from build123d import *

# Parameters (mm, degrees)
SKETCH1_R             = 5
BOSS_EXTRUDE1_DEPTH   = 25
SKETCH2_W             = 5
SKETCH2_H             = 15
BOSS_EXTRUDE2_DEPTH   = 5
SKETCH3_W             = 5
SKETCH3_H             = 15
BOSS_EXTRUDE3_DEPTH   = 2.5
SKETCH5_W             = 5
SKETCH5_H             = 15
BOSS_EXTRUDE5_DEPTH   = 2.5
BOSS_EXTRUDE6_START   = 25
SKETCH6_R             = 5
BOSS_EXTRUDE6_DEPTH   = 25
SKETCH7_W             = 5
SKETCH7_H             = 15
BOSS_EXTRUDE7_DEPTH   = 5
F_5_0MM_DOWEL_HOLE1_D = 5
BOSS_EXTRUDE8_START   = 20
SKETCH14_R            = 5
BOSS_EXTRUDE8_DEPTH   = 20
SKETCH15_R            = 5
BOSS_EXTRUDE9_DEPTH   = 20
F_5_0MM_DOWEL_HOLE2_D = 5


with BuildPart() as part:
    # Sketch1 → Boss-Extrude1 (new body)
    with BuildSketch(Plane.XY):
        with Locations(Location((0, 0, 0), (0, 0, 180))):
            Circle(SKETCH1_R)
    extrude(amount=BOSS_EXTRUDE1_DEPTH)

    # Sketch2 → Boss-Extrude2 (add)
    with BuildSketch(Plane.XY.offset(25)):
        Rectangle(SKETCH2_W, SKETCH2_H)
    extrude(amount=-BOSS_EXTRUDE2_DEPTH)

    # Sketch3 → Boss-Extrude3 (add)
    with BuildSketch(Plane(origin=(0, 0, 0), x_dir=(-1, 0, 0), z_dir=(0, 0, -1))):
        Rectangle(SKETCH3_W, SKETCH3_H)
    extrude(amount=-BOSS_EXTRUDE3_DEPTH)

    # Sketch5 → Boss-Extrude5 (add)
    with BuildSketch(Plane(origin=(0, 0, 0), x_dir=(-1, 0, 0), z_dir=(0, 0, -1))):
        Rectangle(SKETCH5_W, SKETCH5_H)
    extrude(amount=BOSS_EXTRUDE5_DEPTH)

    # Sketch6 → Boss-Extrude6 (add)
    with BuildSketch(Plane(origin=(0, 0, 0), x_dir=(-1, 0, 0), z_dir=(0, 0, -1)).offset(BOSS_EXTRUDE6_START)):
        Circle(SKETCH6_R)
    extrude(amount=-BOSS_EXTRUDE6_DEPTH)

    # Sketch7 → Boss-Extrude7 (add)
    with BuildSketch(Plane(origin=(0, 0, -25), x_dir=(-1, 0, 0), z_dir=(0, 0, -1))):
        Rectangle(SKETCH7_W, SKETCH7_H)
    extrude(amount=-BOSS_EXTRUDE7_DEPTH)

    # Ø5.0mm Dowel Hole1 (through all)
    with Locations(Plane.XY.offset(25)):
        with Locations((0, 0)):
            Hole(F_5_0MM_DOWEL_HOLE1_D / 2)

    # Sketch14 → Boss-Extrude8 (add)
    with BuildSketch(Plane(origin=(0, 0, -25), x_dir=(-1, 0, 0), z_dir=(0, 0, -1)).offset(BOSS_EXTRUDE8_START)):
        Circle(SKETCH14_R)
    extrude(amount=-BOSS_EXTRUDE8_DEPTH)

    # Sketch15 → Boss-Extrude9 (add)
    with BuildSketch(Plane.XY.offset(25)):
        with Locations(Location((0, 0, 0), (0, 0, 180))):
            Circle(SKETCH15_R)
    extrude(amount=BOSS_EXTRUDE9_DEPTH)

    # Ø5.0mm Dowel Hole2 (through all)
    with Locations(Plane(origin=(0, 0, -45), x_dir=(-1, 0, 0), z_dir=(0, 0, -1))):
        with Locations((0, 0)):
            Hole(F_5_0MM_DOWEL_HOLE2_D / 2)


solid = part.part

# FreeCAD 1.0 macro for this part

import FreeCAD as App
import Part
import Sketcher
Q = App.Units.Quantity


def add_polygon(sketch, points):
    """Adds a closed chain of lines whose ends are joined by coincident constraints."""
    first, n = sketch.GeometryCount, len(points)
    for a, b in zip(points, points[1:] + points[:1]):
        sketch.addGeometry(Part.LineSegment(App.Vector(*a, 0), App.Vector(*b, 0)), False)
    for i in range(n):
        sketch.addConstraint(Sketcher.Constraint("Coincident", first + i, 2, first + (i + 1) % n, 1))

doc = App.newDocument("Part")
body = doc.addObject("PartDesign::Body", "Body")

sketch1 = body.newObject("Sketcher::SketchObject", "Sketch")
sketch1.AttachmentSupport = (doc.getObject("XY_Plane"), [""])
sketch1.MapMode = "FlatFace"
sketch1.addGeometry(Part.Circle(App.Vector(0, 0, 0), App.Vector(0, 0, 1), 5), False)
sketch1.addConstraint([
    Sketcher.Constraint("Coincident", 0, 3, -1, 1),
    Sketcher.Constraint("Diameter", 0, Q("10 mm")),
])
pad1 = body.newObject("PartDesign::Pad", "Pad")
pad1.Profile = sketch1
pad1.Length = 25

sketch2 = body.newObject("Sketcher::SketchObject", "Sketch001")
sketch2.AttachmentSupport = (doc.getObject("XY_Plane"), [""])
sketch2.MapMode = "FlatFace"
sketch2.AttachmentOffset = App.Placement(App.Vector(0, 0, 25), App.Rotation())
add_polygon(sketch2, [(-2, 8), (-2, -8), (2, -8), (2, 8)])
sketch2.addConstraint([
    Sketcher.Constraint("Vertical", 0),
    Sketcher.Constraint("Horizontal", 1),
    Sketcher.Constraint("Vertical", 2),
    Sketcher.Constraint("Horizontal", 3),
    Sketcher.Constraint("Symmetric", 0, 2, 2, 2, -1, 1),
    Sketcher.Constraint("DistanceX", 1, 1, 1, 2, Q("5 mm")),
    Sketcher.Constraint("DistanceY", 0, 2, 0, 1, Q("15 mm")),
])
pad2 = body.newObject("PartDesign::Pad", "Pad001")
pad2.Profile = sketch2
pad2.Length = 5
pad2.Reversed = True

sketch3 = body.newObject("Sketcher::SketchObject", "Sketch002")
sketch3.AttachmentSupport = (doc.getObject("XY_Plane"), [""])
sketch3.MapMode = "FlatFace"
add_polygon(sketch3, [(2, 8), (2, -8), (-2, -8), (-2, 8)])
sketch3.addConstraint([
    Sketcher.Constraint("Vertical", 0),
    Sketcher.Constraint("Horizontal", 1),
    Sketcher.Constraint("Vertical", 2),
    Sketcher.Constraint("Horizontal", 3),
    Sketcher.Constraint("Symmetric", 0, 2, 2, 2, -1, 1),
    Sketcher.Constraint("DistanceX", 1, 2, 1, 1, Q("5 mm")),
    Sketcher.Constraint("DistanceY", 0, 2, 0, 1, Q("15 mm")),
])
pad3 = body.newObject("PartDesign::Pad", "Pad002")
pad3.Profile = sketch3
pad3.Length = 2.5

sketch4 = body.newObject("Sketcher::SketchObject", "Sketch003")
sketch4.AttachmentSupport = (doc.getObject("XY_Plane"), [""])
sketch4.MapMode = "FlatFace"
add_polygon(sketch4, [(2, 8), (2, -8), (-2, -8), (-2, 8)])
sketch4.addConstraint([
    Sketcher.Constraint("Vertical", 0),
    Sketcher.Constraint("Horizontal", 1),
    Sketcher.Constraint("Vertical", 2),
    Sketcher.Constraint("Horizontal", 3),
    Sketcher.Constraint("Symmetric", 0, 2, 2, 2, -1, 1),
    Sketcher.Constraint("DistanceX", 1, 2, 1, 1, Q("5 mm")),
    Sketcher.Constraint("DistanceY", 0, 2, 0, 1, Q("15 mm")),
])
pad4 = body.newObject("PartDesign::Pad", "Pad003")
pad4.Profile = sketch4
pad4.Length = 2.5
pad4.Reversed = True

sketch5 = body.newObject("Sketcher::SketchObject", "Sketch004")
sketch5.AttachmentSupport = (doc.getObject("XY_Plane"), [""])
sketch5.MapMode = "FlatFace"
sketch5.AttachmentOffset = App.Placement(App.Vector(0, 0, -25), App.Rotation())
sketch5.addGeometry(Part.Circle(App.Vector(0, 0, 0), App.Vector(0, 0, 1), 5), False)
sketch5.addConstraint([
    Sketcher.Constraint("Coincident", 0, 3, -1, 1),
    Sketcher.Constraint("Diameter", 0, Q("10 mm")),
])
pad5 = body.newObject("PartDesign::Pad", "Pad004")
pad5.Profile = sketch5
pad5.Length = 25

sketch6 = body.newObject("Sketcher::SketchObject", "Sketch005")
sketch6.AttachmentSupport = (doc.getObject("XY_Plane"), [""])
sketch6.MapMode = "FlatFace"
sketch6.AttachmentOffset = App.Placement(App.Vector(0, 0, -25), App.Rotation())
add_polygon(sketch6, [(2, 8), (2, -8), (-2, -8), (-2, 8)])
sketch6.addConstraint([
    Sketcher.Constraint("Vertical", 0),
    Sketcher.Constraint("Horizontal", 1),
    Sketcher.Constraint("Vertical", 2),
    Sketcher.Constraint("Horizontal", 3),
    Sketcher.Constraint("Symmetric", 0, 2, 2, 2, -1, 1),
    Sketcher.Constraint("DistanceX", 1, 2, 1, 1, Q("5 mm")),
    Sketcher.Constraint("DistanceY", 0, 2, 0, 1, Q("15 mm")),
])
pad6 = body.newObject("PartDesign::Pad", "Pad005")
pad6.Profile = sketch6
pad6.Length = 5

sketch7 = body.newObject("Sketcher::SketchObject", "Sketch006")
sketch7.AttachmentSupport = (doc.getObject("XY_Plane"), [""])
sketch7.MapMode = "FlatFace"
sketch7.AttachmentOffset = App.Placement(App.Vector(0, 0, 25), App.Rotation())
sketch7.addGeometry(Part.Circle(App.Vector(0, 0, 0), App.Vector(0, 0, 1), 2.5), False)
sketch7.addConstraint([
    Sketcher.Constraint("Coincident", 0, 3, -1, 1),
    Sketcher.Constraint("Diameter", 0, Q("5 mm")),
])
doc.recompute()
hole = body.newObject("PartDesign::Hole", "Hole")
hole.Profile = sketch7
hole.ThreadType = "None"
hole.Diameter = 5
hole.DepthType = "ThroughAll"

sketch8 = body.newObject("Sketcher::SketchObject", "Sketch007")
sketch8.AttachmentSupport = (doc.getObject("XY_Plane"), [""])
sketch8.MapMode = "FlatFace"
sketch8.AttachmentOffset = App.Placement(App.Vector(0, 0, -45), App.Rotation())
sketch8.addGeometry(Part.Circle(App.Vector(0, 0, 0), App.Vector(0, 0, 1), 5), False)
sketch8.addConstraint([
    Sketcher.Constraint("Coincident", 0, 3, -1, 1),
    Sketcher.Constraint("Diameter", 0, Q("10 mm")),
])
pad7 = body.newObject("PartDesign::Pad", "Pad006")
pad7.Profile = sketch8
pad7.Length = 20

sketch9 = body.newObject("Sketcher::SketchObject", "Sketch008")
sketch9.AttachmentSupport = (doc.getObject("XY_Plane"), [""])
sketch9.MapMode = "FlatFace"
sketch9.AttachmentOffset = App.Placement(App.Vector(0, 0, 25), App.Rotation())
sketch9.addGeometry(Part.Circle(App.Vector(0, 0, 0), App.Vector(0, 0, 1), 5), False)
sketch9.addConstraint([
    Sketcher.Constraint("Coincident", 0, 3, -1, 1),
    Sketcher.Constraint("Diameter", 0, Q("10 mm")),
])
pad8 = body.newObject("PartDesign::Pad", "Pad007")
pad8.Profile = sketch9
pad8.Length = 20

sketch10 = body.newObject("Sketcher::SketchObject", "Sketch009")
sketch10.AttachmentSupport = (doc.getObject("XY_Plane"), [""])
sketch10.MapMode = "FlatFace"
sketch10.AttachmentOffset = App.Placement(App.Vector(0, 0, -45), App.Rotation())
sketch10.addGeometry(Part.Circle(App.Vector(0, 0, 0), App.Vector(0, 0, 1), 2.5), False)
sketch10.addConstraint([
    Sketcher.Constraint("Coincident", 0, 3, -1, 1),
    Sketcher.Constraint("Diameter", 0, Q("5 mm")),
])
doc.recompute()
hole2 = body.newObject("PartDesign::Hole", "Hole001")
hole2.Profile = sketch10
hole2.ThreadType = "None"
hole2.Diameter = 5
hole2.DepthType = "ThroughAll"
hole2.Reversed = True

doc.recompute()
